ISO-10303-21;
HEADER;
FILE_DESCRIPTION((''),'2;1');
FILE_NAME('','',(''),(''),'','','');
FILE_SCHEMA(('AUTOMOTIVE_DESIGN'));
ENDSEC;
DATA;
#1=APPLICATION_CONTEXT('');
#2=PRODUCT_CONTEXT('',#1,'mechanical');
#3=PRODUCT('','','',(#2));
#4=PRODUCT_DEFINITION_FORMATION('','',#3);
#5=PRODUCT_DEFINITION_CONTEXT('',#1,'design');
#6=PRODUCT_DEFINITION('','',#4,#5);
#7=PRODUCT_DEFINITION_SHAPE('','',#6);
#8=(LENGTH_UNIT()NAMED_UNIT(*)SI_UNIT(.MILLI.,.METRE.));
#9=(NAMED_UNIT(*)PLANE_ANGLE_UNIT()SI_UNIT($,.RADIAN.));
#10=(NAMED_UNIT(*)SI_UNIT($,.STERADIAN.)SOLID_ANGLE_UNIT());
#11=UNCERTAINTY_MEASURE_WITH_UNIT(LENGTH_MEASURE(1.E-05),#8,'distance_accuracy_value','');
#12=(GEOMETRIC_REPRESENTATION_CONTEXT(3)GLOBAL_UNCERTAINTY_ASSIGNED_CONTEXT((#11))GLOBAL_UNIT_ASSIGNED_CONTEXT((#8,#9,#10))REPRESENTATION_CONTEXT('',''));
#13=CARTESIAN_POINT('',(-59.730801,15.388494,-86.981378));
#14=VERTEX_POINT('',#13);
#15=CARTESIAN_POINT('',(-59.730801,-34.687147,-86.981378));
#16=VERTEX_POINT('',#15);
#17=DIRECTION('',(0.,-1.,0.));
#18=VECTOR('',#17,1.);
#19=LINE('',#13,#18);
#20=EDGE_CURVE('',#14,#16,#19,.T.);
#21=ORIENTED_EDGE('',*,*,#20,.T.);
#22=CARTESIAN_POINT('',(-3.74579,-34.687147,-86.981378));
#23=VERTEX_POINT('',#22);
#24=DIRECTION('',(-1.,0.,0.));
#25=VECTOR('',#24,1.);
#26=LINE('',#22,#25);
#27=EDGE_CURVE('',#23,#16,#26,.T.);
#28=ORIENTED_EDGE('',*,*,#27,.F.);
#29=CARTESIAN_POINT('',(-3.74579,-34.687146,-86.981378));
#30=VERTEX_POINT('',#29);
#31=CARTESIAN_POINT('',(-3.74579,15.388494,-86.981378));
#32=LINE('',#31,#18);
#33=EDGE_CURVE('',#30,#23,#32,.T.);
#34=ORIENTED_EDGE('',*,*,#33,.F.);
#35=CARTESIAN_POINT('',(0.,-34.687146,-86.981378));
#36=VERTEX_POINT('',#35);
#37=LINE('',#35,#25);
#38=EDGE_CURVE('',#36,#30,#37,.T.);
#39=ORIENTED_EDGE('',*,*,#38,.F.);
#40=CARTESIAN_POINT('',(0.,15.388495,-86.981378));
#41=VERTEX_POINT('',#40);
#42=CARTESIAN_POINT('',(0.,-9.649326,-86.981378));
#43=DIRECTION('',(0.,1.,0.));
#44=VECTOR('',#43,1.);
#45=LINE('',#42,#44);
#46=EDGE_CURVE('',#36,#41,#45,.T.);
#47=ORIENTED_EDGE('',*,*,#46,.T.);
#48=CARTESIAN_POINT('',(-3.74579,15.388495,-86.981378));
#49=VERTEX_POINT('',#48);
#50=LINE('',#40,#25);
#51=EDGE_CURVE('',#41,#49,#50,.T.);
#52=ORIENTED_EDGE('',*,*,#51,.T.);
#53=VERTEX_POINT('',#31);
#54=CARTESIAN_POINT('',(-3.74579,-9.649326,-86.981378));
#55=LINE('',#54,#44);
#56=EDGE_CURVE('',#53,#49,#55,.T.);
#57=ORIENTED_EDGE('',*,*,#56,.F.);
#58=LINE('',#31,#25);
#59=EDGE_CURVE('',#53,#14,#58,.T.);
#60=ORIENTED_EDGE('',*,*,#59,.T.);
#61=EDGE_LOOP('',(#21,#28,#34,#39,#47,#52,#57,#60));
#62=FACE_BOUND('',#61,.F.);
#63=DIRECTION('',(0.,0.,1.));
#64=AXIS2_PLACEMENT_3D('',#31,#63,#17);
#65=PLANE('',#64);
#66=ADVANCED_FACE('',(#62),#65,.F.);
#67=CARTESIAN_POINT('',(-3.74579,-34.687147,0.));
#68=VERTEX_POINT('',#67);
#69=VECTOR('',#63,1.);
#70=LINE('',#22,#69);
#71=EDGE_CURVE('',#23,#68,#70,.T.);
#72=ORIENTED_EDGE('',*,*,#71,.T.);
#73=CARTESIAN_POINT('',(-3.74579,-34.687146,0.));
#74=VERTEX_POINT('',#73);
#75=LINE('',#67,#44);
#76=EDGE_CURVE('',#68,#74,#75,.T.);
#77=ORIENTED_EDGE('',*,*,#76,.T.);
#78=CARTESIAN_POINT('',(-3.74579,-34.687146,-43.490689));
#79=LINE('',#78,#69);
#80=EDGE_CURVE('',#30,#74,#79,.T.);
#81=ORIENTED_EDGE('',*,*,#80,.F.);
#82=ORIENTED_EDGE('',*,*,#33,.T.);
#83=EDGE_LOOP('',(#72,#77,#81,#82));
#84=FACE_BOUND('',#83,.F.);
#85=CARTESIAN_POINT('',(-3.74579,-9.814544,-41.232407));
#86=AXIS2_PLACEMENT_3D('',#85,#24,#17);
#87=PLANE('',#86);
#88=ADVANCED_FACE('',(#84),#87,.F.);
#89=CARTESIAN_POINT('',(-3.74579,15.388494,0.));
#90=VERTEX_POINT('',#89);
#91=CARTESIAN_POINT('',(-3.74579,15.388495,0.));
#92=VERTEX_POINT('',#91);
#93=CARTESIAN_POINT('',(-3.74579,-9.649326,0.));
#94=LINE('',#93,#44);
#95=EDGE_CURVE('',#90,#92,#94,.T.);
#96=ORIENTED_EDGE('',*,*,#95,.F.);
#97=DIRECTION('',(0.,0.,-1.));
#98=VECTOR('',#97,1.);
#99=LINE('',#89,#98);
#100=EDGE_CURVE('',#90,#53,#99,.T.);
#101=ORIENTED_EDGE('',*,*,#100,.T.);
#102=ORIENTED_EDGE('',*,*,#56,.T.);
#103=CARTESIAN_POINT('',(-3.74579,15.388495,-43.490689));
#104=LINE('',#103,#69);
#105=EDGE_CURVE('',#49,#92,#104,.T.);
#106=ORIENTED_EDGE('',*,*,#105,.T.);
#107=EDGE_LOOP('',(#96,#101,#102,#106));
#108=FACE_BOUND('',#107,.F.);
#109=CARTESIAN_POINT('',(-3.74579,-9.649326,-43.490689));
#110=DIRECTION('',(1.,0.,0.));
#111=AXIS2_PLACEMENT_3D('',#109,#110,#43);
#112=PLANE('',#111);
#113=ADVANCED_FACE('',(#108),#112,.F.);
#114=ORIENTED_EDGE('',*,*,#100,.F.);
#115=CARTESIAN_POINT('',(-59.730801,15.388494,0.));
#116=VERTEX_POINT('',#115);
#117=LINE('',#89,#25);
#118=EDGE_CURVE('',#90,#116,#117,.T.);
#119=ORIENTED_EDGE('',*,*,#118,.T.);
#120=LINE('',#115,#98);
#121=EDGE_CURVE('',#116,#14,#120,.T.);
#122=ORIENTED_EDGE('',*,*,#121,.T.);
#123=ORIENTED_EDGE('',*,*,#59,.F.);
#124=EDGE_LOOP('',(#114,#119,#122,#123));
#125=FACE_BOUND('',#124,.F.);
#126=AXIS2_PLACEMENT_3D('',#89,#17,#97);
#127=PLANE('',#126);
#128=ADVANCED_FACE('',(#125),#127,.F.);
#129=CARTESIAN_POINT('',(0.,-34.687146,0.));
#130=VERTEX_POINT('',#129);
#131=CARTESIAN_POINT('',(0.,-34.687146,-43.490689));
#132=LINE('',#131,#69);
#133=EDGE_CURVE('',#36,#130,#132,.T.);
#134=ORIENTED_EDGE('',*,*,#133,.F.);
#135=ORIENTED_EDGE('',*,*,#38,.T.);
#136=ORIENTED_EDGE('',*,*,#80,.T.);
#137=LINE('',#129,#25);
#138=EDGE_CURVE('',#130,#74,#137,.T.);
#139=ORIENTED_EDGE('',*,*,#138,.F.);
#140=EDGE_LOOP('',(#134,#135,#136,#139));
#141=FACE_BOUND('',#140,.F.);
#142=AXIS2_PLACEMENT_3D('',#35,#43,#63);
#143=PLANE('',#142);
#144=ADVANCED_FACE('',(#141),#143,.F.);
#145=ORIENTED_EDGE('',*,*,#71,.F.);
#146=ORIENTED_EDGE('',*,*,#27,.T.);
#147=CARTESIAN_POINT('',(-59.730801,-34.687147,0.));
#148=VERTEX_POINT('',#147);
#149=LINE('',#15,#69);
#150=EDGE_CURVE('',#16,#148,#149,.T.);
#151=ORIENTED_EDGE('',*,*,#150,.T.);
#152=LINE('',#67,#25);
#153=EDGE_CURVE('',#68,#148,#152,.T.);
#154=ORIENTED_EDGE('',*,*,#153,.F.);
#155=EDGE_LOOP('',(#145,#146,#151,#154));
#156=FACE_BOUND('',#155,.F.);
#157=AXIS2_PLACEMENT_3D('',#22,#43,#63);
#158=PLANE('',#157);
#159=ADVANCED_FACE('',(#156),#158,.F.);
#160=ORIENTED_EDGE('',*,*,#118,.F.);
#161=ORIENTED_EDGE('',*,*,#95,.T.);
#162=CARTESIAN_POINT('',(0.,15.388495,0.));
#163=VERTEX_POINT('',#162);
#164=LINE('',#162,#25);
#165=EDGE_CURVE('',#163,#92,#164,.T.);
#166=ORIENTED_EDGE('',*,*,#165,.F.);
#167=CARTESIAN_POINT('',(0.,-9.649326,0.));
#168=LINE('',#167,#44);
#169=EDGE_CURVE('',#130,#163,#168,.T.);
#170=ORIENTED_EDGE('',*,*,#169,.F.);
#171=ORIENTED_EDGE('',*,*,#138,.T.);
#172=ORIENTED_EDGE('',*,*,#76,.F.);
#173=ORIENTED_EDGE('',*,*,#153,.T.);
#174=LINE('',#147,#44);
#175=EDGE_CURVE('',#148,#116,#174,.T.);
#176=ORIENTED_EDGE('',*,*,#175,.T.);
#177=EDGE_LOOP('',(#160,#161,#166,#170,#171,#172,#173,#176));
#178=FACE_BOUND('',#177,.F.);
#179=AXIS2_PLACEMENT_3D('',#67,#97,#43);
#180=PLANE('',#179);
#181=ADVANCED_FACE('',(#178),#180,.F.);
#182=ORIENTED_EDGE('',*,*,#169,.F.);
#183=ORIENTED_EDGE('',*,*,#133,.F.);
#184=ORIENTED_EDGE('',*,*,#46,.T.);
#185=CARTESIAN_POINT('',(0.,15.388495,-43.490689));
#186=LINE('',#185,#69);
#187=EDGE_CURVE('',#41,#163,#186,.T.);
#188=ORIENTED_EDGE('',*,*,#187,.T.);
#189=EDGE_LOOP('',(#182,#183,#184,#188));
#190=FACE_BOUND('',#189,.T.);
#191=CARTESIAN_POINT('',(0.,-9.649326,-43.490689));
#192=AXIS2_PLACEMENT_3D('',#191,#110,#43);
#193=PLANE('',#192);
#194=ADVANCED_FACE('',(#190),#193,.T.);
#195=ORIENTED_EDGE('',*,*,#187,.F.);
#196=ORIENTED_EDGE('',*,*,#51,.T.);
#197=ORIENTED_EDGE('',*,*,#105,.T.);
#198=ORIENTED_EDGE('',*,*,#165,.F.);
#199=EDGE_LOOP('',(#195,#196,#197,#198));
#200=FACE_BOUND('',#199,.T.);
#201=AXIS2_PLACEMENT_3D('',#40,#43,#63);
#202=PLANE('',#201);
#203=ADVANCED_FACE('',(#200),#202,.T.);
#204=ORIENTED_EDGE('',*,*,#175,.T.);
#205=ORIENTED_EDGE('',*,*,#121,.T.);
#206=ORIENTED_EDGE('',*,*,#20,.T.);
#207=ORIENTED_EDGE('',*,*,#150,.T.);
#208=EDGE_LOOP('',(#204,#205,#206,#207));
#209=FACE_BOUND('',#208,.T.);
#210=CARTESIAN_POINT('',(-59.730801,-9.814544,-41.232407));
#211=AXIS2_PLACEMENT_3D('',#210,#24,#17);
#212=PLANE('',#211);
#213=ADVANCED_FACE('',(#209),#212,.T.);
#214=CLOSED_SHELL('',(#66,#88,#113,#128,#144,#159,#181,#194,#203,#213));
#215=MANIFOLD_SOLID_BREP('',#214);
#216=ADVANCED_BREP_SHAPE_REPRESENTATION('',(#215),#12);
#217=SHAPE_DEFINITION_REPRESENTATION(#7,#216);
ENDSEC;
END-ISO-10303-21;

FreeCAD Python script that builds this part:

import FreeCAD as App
import Part
import Sketcher

V = App.Vector

doc = App.newDocument("Part")
body = doc.addObject("PartDesign::Body", "Body")

sketch1 = body.newObject("Sketcher::SketchObject", "Sketch")
sketch1.AttachmentSupport = (doc.getObject("YZ_Plane"), [""])
sketch1.MapMode = "FlatFace"
sketch1.addGeometry([
    Part.LineSegment(V(-34.687146, 0, 0), V(-34.687146, -86.981378, 0)),
    Part.LineSegment(V(-34.687146, -86.981378, 0), V(15.388495, -86.981378, 0)),
    Part.LineSegment(V(15.388495, -86.981378, 0), V(15.388495, 0, 0)),
    Part.LineSegment(V(15.388495, 0, 0), V(-34.687146, 0, 0)),
], False)
sketch1.addConstraint([
    Sketcher.Constraint("Coincident", 0, 2, 1, 1),
    Sketcher.Constraint("Coincident", 1, 2, 2, 1),
    Sketcher.Constraint("Coincident", 2, 2, 3, 1),
    Sketcher.Constraint("Coincident", 3, 2, 0, 1),
    Sketcher.Constraint("Vertical", 0),
    Sketcher.Constraint("Horizontal", 1),
    Sketcher.Constraint("Vertical", 2),
    Sketcher.Constraint("Horizontal", 3),
    Sketcher.Constraint("PointOnObject", 2, 2, -1),
    Sketcher.Constraint("DistanceX", 1, 1, 1, 2, 50.075641),
    Sketcher.Constraint("DistanceY", 0, 2, 0, 1, 86.981378),
    Sketcher.Constraint("DistanceX", 0, 2, -1, 1, 34.687146),
])
pad1 = body.newObject("PartDesign::Pad", "Pad")
pad1.Profile = sketch1
pad1.Length = 3.74579
pad1.Reversed = True

sketch2 = body.newObject("Sketcher::SketchObject", "Sketch001")
sketch2.AttachmentSupport = (doc.getObject("YZ_Plane"), [""])
sketch2.MapMode = "FlatFace"
sketch2.AttachmentOffset = App.Placement(V(0, 0, -3.74579), App.Rotation())
sketch2.addGeometry([
    Part.LineSegment(V(15.388494, 0, 0), V(15.388494, -86.981378, 0)),
    Part.LineSegment(V(15.388494, -86.981378, 0), V(-34.687147, -86.981378, 0)),
    Part.LineSegment(V(-34.687147, -86.981378, 0), V(-34.687147, 0, 0)),
    Part.LineSegment(V(-34.687147, 0, 0), V(15.388494, 0, 0)),
], False)
sketch2.addConstraint([
    Sketcher.Constraint("Coincident", 0, 2, 1, 1),
    Sketcher.Constraint("Coincident", 1, 2, 2, 1),
    Sketcher.Constraint("Coincident", 2, 2, 3, 1),
    Sketcher.Constraint("Coincident", 3, 2, 0, 1),
    Sketcher.Constraint("Vertical", 0),
    Sketcher.Constraint("Horizontal", 1),
    Sketcher.Constraint("Vertical", 2),
    Sketcher.Constraint("Horizontal", 3),
    Sketcher.Constraint("PointOnObject", 2, 2, -1),
    Sketcher.Constraint("DistanceX", 1, 2, 1, 1, 50.075641),
    Sketcher.Constraint("DistanceY", 0, 2, 0, 1, 86.981378),
    Sketcher.Constraint("DistanceX", -1, 1, 0, 2, 15.388494),
])
pad2 = body.newObject("PartDesign::Pad", "Pad001")
pad2.Profile = sketch2
pad2.Length = 55.985011
pad2.Reversed = True

doc.recompute()
